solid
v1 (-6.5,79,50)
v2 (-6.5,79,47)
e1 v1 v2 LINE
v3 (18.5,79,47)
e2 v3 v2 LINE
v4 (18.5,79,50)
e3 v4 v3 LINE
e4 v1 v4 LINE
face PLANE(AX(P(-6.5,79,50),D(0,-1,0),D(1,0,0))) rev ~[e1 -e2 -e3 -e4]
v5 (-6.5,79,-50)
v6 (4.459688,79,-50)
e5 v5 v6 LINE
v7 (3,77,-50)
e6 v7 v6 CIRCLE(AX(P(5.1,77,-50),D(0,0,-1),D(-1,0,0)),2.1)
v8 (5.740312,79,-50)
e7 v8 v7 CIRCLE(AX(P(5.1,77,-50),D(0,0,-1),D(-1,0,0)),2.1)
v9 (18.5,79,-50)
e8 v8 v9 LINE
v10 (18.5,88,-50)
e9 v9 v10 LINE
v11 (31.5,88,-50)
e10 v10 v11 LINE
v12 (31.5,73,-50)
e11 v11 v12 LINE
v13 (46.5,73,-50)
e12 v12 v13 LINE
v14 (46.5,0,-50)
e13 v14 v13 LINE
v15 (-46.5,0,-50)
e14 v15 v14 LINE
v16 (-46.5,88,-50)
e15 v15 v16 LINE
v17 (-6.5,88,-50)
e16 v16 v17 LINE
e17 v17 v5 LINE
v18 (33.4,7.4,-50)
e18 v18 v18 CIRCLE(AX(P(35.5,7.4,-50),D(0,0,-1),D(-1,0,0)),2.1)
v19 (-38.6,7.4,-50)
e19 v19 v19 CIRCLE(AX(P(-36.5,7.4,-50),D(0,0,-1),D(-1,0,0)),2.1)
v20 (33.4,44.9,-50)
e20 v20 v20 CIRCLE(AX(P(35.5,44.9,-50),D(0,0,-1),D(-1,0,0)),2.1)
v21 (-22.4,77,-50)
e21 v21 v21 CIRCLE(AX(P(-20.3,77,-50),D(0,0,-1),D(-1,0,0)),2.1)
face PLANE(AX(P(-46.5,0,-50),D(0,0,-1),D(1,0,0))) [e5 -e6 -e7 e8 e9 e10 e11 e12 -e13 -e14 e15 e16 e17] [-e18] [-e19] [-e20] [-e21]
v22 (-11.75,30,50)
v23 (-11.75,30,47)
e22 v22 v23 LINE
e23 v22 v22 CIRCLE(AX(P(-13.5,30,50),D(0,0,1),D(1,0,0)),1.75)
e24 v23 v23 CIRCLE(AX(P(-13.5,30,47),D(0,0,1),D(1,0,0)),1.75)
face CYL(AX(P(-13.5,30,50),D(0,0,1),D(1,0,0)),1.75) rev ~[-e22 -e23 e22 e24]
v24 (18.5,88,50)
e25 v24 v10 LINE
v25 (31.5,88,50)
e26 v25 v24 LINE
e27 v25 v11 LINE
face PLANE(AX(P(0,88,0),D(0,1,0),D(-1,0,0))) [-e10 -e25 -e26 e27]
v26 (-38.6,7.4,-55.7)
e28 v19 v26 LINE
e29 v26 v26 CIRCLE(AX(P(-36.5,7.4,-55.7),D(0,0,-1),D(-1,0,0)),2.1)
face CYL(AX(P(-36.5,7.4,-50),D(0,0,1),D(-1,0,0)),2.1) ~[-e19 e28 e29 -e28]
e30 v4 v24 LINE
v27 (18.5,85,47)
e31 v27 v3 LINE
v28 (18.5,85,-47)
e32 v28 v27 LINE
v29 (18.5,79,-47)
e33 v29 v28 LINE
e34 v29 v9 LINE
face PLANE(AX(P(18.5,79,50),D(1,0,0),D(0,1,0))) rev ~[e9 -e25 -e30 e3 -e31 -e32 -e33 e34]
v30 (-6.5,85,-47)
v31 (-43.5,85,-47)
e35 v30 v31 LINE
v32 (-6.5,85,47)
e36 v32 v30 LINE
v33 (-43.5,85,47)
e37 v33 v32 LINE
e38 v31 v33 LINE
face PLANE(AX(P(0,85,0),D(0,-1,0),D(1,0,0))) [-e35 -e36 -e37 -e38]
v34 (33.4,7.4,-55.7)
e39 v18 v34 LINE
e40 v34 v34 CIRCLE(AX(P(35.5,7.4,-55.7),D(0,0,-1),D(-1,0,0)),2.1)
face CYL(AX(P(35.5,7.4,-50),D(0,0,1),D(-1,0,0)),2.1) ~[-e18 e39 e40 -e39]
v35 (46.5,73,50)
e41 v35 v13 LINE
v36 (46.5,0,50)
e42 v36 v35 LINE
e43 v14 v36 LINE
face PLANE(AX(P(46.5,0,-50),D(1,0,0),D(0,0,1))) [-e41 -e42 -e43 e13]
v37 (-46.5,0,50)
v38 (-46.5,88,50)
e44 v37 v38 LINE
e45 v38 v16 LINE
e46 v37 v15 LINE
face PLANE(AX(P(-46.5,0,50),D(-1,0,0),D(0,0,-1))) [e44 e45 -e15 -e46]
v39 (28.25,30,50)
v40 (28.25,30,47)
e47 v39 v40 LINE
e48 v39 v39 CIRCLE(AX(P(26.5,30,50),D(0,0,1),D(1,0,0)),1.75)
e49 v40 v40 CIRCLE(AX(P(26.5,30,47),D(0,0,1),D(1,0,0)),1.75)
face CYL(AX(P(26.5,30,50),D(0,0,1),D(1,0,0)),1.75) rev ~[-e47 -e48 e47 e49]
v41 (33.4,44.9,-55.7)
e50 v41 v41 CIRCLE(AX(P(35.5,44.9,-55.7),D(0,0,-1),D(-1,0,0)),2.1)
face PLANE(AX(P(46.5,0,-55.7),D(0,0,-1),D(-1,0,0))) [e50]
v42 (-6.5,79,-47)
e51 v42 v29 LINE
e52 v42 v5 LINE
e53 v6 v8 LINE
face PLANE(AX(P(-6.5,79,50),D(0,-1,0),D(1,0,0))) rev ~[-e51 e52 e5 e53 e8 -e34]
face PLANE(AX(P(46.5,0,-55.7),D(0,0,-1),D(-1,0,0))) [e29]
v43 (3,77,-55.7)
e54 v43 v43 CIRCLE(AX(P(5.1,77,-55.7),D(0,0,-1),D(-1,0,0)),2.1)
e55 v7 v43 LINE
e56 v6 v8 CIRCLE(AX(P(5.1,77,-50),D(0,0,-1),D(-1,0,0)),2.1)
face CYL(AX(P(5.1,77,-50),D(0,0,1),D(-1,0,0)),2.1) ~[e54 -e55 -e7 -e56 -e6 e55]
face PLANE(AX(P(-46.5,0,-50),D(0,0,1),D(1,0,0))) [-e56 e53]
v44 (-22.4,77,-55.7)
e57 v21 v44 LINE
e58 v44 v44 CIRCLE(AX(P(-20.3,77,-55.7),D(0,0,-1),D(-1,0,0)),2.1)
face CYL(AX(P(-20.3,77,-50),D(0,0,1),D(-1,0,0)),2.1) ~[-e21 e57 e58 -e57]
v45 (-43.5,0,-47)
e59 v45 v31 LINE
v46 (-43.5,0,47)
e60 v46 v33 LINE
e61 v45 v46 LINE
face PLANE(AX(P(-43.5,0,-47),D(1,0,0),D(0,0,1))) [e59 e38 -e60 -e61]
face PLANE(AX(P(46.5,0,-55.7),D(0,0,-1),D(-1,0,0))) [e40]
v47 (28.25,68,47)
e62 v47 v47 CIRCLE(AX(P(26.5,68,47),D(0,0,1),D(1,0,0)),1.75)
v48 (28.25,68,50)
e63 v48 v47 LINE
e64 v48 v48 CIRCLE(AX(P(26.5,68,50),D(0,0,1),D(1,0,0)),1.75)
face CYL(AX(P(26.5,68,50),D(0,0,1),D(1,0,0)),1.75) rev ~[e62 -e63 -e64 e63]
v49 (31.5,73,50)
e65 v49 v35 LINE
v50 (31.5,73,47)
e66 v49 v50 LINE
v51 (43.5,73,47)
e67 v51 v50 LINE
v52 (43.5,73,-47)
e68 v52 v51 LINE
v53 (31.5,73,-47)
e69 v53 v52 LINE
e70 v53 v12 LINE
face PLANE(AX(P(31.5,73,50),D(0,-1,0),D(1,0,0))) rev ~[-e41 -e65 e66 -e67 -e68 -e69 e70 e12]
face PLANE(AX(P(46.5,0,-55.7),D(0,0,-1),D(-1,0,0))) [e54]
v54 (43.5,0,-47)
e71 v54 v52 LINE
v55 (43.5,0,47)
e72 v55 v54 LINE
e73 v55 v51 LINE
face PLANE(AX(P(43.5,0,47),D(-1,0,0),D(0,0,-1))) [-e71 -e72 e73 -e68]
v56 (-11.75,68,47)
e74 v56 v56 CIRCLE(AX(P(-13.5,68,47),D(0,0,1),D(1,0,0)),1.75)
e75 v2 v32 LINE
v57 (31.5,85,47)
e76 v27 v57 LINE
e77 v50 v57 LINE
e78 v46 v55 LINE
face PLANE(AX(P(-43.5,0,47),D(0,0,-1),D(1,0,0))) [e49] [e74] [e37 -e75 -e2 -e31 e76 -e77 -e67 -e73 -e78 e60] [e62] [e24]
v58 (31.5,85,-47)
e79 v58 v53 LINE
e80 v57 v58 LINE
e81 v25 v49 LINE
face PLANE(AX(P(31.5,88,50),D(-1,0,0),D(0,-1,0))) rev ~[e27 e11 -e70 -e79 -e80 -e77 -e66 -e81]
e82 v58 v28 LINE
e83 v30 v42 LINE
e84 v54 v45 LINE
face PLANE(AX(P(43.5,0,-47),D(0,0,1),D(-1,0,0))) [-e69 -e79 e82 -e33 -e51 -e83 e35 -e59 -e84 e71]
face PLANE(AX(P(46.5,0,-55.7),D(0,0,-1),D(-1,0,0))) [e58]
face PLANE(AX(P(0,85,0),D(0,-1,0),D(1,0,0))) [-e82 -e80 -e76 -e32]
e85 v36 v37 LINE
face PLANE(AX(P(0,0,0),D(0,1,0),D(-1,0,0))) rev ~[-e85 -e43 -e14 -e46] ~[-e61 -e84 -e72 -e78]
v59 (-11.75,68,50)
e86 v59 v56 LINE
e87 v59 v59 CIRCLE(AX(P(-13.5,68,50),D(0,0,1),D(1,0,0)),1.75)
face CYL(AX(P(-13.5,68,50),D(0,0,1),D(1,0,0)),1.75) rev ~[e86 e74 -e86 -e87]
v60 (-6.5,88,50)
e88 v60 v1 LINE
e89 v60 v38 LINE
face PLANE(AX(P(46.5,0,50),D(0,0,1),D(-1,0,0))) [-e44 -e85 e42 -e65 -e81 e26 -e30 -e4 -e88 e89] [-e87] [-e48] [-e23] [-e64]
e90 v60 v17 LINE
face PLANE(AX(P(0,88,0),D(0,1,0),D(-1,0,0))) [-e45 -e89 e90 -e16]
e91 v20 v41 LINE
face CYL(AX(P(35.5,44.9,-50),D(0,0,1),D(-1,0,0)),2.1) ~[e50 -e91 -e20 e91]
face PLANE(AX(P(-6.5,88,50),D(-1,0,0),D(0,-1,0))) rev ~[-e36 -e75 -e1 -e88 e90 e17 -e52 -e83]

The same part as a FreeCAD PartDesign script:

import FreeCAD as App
import Part
import Sketcher

V = App.Vector


def add_polygon(sketch, points):
    """Adds a closed chain of lines whose ends are joined by coincident constraints."""
    first, n = sketch.GeometryCount, len(points)
    for a, b in zip(points, points[1:] + points[:1]):
        sketch.addGeometry(Part.LineSegment(App.Vector(*a, 0), App.Vector(*b, 0)), False)
    for i in range(n):
        sketch.addConstraint(Sketcher.Constraint("Coincident", first + i, 2, first + (i + 1) % n, 1))

doc = App.newDocument("Part")
params = doc.addObject("Spreadsheet::Sheet", "Params")
for row, (alias, value) in enumerate([
    ("sketch1_width", "93 mm"),
    ("sketch1_height", "100 mm"),
    ("pad1_length", "88 mm"),
    ("sketch2_width", "87 mm"),
    ("sketch2_height", "94 mm"),
    ("pocket1_length", "85 mm"),
    ("sketch3_width", "15 mm"),
    ("pocket2_length", "100 mm"),
    ("sketch4_diameter", "3.5 mm"),
    ("pocket3_length", "3 mm"),
    ("sketch5_diameter", "4.2 mm"),
    ("pad2_length", "5.7 mm"),
    ("sketch6_width", "25 mm"),
    ("sketch6_height", "9 mm"),
    ("pocket4_length", "100 mm"),
], start=1):
    params.set(f"A{row}", alias)
    params.set(f"B{row}", "=" + value)
    params.setAlias(f"B{row}", alias)

body = doc.addObject("PartDesign::Body", "Body")

# Sketch on XZ plane
sketch1 = body.newObject("Sketcher::SketchObject", "Sketch")
sketch1.AttachmentSupport = (doc.getObject("XZ_Plane"), [""])
sketch1.MapMode = "FlatFace"
add_polygon(sketch1, [(-46, 50), (46, 50), (46, -50), (-46, -50)])  # lines 0-3
sketch1.addConstraint([
    Sketcher.Constraint("Horizontal", 0),
    Sketcher.Constraint("Vertical", 1),
    Sketcher.Constraint("Horizontal", 2),
    Sketcher.Constraint("Vertical", 3),
    Sketcher.Constraint("Symmetric", 0, 2, 2, 2, -1, 1),
    Sketcher.Constraint("DistanceX", 0, 1, 0, 2, 93.0),
    Sketcher.Constraint("DistanceY", 1, 2, 1, 1, 100.0),
])
sketch1.setExpression("Constraints[9]", "Params.sketch1_width")
sketch1.setExpression("Constraints[10]", "Params.sketch1_height")
pad1 = body.newObject("PartDesign::Pad", "Pad")
pad1.Profile = sketch1
pad1.setExpression("Length", "Params.pad1_length")
pad1.Reversed = True

# Sketch on XZ plane
sketch2 = body.newObject("Sketcher::SketchObject", "Sketch001")
sketch2.AttachmentSupport = (doc.getObject("XZ_Plane"), [""])
sketch2.MapMode = "FlatFace"
add_polygon(sketch2, [(44, 47), (-44, 47), (-44, -47), (44, -47)])  # lines 0-3
sketch2.addConstraint([
    Sketcher.Constraint("Horizontal", 0),
    Sketcher.Constraint("Vertical", 1),
    Sketcher.Constraint("Horizontal", 2),
    Sketcher.Constraint("Vertical", 3),
    Sketcher.Constraint("Symmetric", 0, 2, 2, 2, -1, 1),
    Sketcher.Constraint("DistanceX", 0, 2, 0, 1, 87.0),
    Sketcher.Constraint("DistanceY", 1, 2, 1, 1, 94.0),
])
sketch2.setExpression("Constraints[9]", "Params.sketch2_width")
sketch2.setExpression("Constraints[10]", "Params.sketch2_height")
pocket1 = body.newObject("PartDesign::Pocket", "Pocket")
pocket1.Profile = sketch2
pocket1.setExpression("Length", "Params.pocket1_length")

# Sketch on XY plane
sketch3 = body.newObject("Sketcher::SketchObject", "Sketch002")
sketch3.AttachmentSupport = (doc.getObject("XY_Plane"), [""])
sketch3.MapMode = "FlatFace"
sketch3.AttachmentOffset = App.Placement(V(0, 0, 50), App.Rotation())
add_polygon(sketch3, [(46, 88), (32, 88), (32, 73), (46, 73)])  # lines 0-3
sketch3.addConstraint([
    Sketcher.Constraint("Horizontal", 0),
    Sketcher.Constraint("Vertical", 1),
    Sketcher.Constraint("Horizontal", 2),
    Sketcher.Constraint("Vertical", 3),
    Sketcher.Constraint("Equal", 2, 1),
    Sketcher.Constraint("DistanceX", 0, 2, 0, 1, 15.0),
    Sketcher.Constraint("DistanceY", -1, 1, 0, 2, 88.0),
    Sketcher.Constraint("DistanceX", -1, 1, 0, 2, 31.5),
])
sketch3.setExpression("Constraints[9]", "Params.sketch3_width")
pocket2 = body.newObject("PartDesign::Pocket", "Pocket001")
pocket2.Profile = sketch3
pocket2.setExpression("Length", "Params.pocket2_length")

# Sketch on XY plane
sketch4 = body.newObject("Sketcher::SketchObject", "Sketch003")
sketch4.AttachmentSupport = (doc.getObject("XY_Plane"), [""])
sketch4.MapMode = "FlatFace"
sketch4.AttachmentOffset = App.Placement(V(0, 0, 50), App.Rotation())
sketch4.addGeometry([
    Part.Circle(V(26.5, 68, 0), V(0, 0, 1), 1.8),
    Part.Circle(V(-13.5, 68, 0), V(0, 0, 1), 1.8),
    Part.Circle(V(26.5, 30, 0), V(0, 0, 1), 1.8),
    Part.Circle(V(-13.5, 30, 0), V(0, 0, 1), 1.8),
], False)
sketch4.addConstraint([
    Sketcher.Constraint("Equal", 0, 1),
    Sketcher.Constraint("Equal", 1, 2),
    Sketcher.Constraint("Equal", 2, 3),
    Sketcher.Constraint("Horizontal", 0, 3, 1, 3),
    Sketcher.Constraint("Horizontal", 2, 3, 3, 3),
    Sketcher.Constraint("Vertical", 0, 3, 2, 3),
    Sketcher.Constraint("Vertical", 1, 3, 3, 3),
    Sketcher.Constraint("Diameter", 0, 3.5),
    Sketcher.Constraint("DistanceX", 1, 3, 0, 3, 40.0),
    Sketcher.Constraint("DistanceY", 2, 3, 0, 3, 38.0),
    Sketcher.Constraint("DistanceY", -1, 1, 0, 3, 68.0),
    Sketcher.Constraint("DistanceX", -1, 1, 0, 3, 26.5),
])
sketch4.setExpression("Constraints[7]", "Params.sketch4_diameter")
pocket3 = body.newObject("PartDesign::Pocket", "Pocket002")
pocket3.Profile = sketch4
pocket3.setExpression("Length", "Params.pocket3_length")

# Sketch on XY plane
sketch5 = body.newObject("Sketcher::SketchObject", "Sketch004")
sketch5.AttachmentSupport = (doc.getObject("XY_Plane"), [""])
sketch5.MapMode = "FlatFace"
sketch5.AttachmentOffset = App.Placement(V(0, 0, -50), App.Rotation())
sketch5.addGeometry([
    Part.Circle(V(-20.3, 77, 0), V(0, 0, 1), 2.1),  # 0
    Part.Circle(V(5.1, 77, 0), V(0, 0, 1), 2.1),  # 1
    Part.Circle(V(35.5, 44.9, 0), V(0, 0, 1), 2.1),  # 2
    Part.Circle(V(35.5, 7.4, 0), V(0, 0, 1), 2.1),  # 3
    Part.Circle(V(-36.5, 7.4, 0), V(0, 0, 1), 2.1),  # 4
], False)
sketch5.addConstraint([
    Sketcher.Constraint("Equal", 0, 1),
    Sketcher.Constraint("Equal", 1, 2),
    Sketcher.Constraint("Equal", 2, 3),
    Sketcher.Constraint("Equal", 3, 4),
    Sketcher.Constraint("Horizontal", 0, 3, 1, 3),
    Sketcher.Constraint("Horizontal", 3, 3, 4, 3),
    Sketcher.Constraint("Vertical", 2, 3, 3, 3),
    Sketcher.Constraint("Diameter", 0, 4.2),
    Sketcher.Constraint("DistanceX", 0, 3, 1, 3, 25.4),
    Sketcher.Constraint("DistanceY", 3, 3, 2, 3, 37.5),
    Sketcher.Constraint("DistanceY", -1, 1, 0, 3, 77.0),
    Sketcher.Constraint("DistanceX", 4, 3, 3, 3, 72.0),
    Sketcher.Constraint("DistanceX", 0, 3, -1, 1, 20.3),
    Sketcher.Constraint("DistanceX", -1, 1, 2, 3, 35.5),
    Sketcher.Constraint("DistanceY", -1, 1, 2, 3, 44.9),
])
sketch5.setExpression("Constraints[7]", "Params.sketch5_diameter")
pad2 = body.newObject("PartDesign::Pad", "Pad001")
pad2.Profile = sketch5
pad2.setExpression("Length", "Params.pad2_length")
pad2.Reversed = True

# Sketch on XY plane
sketch6 = body.newObject("Sketcher::SketchObject", "Sketch005")
sketch6.AttachmentSupport = (doc.getObject("XY_Plane"), [""])
sketch6.MapMode = "FlatFace"
sketch6.AttachmentOffset = App.Placement(V(0, 0, 50), App.Rotation())
add_polygon(sketch6, [(18, 88), (-6, 88), (-6, 79), (18, 79)])  # lines 0-3
sketch6.addConstraint([
    Sketcher.Constraint("Horizontal", 0),
    Sketcher.Constraint("Vertical", 1),
    Sketcher.Constraint("Horizontal", 2),
    Sketcher.Constraint("Vertical", 3),
    Sketcher.Constraint("DistanceX", 0, 2, 0, 1, 25.0),
    Sketcher.Constraint("DistanceY", 1, 2, 1, 1, 9.0),
    Sketcher.Constraint("DistanceY", -1, 1, 0, 2, 88.0),
    Sketcher.Constraint("DistanceX", 0, 2, -1, 1, 6.5),
])
sketch6.setExpression("Constraints[8]", "Params.sketch6_width")
sketch6.setExpression("Constraints[9]", "Params.sketch6_height")
pocket4 = body.newObject("PartDesign::Pocket", "Pocket003")
pocket4.Profile = sketch6
pocket4.setExpression("Length", "Params.pocket4_length")

doc.recompute()
